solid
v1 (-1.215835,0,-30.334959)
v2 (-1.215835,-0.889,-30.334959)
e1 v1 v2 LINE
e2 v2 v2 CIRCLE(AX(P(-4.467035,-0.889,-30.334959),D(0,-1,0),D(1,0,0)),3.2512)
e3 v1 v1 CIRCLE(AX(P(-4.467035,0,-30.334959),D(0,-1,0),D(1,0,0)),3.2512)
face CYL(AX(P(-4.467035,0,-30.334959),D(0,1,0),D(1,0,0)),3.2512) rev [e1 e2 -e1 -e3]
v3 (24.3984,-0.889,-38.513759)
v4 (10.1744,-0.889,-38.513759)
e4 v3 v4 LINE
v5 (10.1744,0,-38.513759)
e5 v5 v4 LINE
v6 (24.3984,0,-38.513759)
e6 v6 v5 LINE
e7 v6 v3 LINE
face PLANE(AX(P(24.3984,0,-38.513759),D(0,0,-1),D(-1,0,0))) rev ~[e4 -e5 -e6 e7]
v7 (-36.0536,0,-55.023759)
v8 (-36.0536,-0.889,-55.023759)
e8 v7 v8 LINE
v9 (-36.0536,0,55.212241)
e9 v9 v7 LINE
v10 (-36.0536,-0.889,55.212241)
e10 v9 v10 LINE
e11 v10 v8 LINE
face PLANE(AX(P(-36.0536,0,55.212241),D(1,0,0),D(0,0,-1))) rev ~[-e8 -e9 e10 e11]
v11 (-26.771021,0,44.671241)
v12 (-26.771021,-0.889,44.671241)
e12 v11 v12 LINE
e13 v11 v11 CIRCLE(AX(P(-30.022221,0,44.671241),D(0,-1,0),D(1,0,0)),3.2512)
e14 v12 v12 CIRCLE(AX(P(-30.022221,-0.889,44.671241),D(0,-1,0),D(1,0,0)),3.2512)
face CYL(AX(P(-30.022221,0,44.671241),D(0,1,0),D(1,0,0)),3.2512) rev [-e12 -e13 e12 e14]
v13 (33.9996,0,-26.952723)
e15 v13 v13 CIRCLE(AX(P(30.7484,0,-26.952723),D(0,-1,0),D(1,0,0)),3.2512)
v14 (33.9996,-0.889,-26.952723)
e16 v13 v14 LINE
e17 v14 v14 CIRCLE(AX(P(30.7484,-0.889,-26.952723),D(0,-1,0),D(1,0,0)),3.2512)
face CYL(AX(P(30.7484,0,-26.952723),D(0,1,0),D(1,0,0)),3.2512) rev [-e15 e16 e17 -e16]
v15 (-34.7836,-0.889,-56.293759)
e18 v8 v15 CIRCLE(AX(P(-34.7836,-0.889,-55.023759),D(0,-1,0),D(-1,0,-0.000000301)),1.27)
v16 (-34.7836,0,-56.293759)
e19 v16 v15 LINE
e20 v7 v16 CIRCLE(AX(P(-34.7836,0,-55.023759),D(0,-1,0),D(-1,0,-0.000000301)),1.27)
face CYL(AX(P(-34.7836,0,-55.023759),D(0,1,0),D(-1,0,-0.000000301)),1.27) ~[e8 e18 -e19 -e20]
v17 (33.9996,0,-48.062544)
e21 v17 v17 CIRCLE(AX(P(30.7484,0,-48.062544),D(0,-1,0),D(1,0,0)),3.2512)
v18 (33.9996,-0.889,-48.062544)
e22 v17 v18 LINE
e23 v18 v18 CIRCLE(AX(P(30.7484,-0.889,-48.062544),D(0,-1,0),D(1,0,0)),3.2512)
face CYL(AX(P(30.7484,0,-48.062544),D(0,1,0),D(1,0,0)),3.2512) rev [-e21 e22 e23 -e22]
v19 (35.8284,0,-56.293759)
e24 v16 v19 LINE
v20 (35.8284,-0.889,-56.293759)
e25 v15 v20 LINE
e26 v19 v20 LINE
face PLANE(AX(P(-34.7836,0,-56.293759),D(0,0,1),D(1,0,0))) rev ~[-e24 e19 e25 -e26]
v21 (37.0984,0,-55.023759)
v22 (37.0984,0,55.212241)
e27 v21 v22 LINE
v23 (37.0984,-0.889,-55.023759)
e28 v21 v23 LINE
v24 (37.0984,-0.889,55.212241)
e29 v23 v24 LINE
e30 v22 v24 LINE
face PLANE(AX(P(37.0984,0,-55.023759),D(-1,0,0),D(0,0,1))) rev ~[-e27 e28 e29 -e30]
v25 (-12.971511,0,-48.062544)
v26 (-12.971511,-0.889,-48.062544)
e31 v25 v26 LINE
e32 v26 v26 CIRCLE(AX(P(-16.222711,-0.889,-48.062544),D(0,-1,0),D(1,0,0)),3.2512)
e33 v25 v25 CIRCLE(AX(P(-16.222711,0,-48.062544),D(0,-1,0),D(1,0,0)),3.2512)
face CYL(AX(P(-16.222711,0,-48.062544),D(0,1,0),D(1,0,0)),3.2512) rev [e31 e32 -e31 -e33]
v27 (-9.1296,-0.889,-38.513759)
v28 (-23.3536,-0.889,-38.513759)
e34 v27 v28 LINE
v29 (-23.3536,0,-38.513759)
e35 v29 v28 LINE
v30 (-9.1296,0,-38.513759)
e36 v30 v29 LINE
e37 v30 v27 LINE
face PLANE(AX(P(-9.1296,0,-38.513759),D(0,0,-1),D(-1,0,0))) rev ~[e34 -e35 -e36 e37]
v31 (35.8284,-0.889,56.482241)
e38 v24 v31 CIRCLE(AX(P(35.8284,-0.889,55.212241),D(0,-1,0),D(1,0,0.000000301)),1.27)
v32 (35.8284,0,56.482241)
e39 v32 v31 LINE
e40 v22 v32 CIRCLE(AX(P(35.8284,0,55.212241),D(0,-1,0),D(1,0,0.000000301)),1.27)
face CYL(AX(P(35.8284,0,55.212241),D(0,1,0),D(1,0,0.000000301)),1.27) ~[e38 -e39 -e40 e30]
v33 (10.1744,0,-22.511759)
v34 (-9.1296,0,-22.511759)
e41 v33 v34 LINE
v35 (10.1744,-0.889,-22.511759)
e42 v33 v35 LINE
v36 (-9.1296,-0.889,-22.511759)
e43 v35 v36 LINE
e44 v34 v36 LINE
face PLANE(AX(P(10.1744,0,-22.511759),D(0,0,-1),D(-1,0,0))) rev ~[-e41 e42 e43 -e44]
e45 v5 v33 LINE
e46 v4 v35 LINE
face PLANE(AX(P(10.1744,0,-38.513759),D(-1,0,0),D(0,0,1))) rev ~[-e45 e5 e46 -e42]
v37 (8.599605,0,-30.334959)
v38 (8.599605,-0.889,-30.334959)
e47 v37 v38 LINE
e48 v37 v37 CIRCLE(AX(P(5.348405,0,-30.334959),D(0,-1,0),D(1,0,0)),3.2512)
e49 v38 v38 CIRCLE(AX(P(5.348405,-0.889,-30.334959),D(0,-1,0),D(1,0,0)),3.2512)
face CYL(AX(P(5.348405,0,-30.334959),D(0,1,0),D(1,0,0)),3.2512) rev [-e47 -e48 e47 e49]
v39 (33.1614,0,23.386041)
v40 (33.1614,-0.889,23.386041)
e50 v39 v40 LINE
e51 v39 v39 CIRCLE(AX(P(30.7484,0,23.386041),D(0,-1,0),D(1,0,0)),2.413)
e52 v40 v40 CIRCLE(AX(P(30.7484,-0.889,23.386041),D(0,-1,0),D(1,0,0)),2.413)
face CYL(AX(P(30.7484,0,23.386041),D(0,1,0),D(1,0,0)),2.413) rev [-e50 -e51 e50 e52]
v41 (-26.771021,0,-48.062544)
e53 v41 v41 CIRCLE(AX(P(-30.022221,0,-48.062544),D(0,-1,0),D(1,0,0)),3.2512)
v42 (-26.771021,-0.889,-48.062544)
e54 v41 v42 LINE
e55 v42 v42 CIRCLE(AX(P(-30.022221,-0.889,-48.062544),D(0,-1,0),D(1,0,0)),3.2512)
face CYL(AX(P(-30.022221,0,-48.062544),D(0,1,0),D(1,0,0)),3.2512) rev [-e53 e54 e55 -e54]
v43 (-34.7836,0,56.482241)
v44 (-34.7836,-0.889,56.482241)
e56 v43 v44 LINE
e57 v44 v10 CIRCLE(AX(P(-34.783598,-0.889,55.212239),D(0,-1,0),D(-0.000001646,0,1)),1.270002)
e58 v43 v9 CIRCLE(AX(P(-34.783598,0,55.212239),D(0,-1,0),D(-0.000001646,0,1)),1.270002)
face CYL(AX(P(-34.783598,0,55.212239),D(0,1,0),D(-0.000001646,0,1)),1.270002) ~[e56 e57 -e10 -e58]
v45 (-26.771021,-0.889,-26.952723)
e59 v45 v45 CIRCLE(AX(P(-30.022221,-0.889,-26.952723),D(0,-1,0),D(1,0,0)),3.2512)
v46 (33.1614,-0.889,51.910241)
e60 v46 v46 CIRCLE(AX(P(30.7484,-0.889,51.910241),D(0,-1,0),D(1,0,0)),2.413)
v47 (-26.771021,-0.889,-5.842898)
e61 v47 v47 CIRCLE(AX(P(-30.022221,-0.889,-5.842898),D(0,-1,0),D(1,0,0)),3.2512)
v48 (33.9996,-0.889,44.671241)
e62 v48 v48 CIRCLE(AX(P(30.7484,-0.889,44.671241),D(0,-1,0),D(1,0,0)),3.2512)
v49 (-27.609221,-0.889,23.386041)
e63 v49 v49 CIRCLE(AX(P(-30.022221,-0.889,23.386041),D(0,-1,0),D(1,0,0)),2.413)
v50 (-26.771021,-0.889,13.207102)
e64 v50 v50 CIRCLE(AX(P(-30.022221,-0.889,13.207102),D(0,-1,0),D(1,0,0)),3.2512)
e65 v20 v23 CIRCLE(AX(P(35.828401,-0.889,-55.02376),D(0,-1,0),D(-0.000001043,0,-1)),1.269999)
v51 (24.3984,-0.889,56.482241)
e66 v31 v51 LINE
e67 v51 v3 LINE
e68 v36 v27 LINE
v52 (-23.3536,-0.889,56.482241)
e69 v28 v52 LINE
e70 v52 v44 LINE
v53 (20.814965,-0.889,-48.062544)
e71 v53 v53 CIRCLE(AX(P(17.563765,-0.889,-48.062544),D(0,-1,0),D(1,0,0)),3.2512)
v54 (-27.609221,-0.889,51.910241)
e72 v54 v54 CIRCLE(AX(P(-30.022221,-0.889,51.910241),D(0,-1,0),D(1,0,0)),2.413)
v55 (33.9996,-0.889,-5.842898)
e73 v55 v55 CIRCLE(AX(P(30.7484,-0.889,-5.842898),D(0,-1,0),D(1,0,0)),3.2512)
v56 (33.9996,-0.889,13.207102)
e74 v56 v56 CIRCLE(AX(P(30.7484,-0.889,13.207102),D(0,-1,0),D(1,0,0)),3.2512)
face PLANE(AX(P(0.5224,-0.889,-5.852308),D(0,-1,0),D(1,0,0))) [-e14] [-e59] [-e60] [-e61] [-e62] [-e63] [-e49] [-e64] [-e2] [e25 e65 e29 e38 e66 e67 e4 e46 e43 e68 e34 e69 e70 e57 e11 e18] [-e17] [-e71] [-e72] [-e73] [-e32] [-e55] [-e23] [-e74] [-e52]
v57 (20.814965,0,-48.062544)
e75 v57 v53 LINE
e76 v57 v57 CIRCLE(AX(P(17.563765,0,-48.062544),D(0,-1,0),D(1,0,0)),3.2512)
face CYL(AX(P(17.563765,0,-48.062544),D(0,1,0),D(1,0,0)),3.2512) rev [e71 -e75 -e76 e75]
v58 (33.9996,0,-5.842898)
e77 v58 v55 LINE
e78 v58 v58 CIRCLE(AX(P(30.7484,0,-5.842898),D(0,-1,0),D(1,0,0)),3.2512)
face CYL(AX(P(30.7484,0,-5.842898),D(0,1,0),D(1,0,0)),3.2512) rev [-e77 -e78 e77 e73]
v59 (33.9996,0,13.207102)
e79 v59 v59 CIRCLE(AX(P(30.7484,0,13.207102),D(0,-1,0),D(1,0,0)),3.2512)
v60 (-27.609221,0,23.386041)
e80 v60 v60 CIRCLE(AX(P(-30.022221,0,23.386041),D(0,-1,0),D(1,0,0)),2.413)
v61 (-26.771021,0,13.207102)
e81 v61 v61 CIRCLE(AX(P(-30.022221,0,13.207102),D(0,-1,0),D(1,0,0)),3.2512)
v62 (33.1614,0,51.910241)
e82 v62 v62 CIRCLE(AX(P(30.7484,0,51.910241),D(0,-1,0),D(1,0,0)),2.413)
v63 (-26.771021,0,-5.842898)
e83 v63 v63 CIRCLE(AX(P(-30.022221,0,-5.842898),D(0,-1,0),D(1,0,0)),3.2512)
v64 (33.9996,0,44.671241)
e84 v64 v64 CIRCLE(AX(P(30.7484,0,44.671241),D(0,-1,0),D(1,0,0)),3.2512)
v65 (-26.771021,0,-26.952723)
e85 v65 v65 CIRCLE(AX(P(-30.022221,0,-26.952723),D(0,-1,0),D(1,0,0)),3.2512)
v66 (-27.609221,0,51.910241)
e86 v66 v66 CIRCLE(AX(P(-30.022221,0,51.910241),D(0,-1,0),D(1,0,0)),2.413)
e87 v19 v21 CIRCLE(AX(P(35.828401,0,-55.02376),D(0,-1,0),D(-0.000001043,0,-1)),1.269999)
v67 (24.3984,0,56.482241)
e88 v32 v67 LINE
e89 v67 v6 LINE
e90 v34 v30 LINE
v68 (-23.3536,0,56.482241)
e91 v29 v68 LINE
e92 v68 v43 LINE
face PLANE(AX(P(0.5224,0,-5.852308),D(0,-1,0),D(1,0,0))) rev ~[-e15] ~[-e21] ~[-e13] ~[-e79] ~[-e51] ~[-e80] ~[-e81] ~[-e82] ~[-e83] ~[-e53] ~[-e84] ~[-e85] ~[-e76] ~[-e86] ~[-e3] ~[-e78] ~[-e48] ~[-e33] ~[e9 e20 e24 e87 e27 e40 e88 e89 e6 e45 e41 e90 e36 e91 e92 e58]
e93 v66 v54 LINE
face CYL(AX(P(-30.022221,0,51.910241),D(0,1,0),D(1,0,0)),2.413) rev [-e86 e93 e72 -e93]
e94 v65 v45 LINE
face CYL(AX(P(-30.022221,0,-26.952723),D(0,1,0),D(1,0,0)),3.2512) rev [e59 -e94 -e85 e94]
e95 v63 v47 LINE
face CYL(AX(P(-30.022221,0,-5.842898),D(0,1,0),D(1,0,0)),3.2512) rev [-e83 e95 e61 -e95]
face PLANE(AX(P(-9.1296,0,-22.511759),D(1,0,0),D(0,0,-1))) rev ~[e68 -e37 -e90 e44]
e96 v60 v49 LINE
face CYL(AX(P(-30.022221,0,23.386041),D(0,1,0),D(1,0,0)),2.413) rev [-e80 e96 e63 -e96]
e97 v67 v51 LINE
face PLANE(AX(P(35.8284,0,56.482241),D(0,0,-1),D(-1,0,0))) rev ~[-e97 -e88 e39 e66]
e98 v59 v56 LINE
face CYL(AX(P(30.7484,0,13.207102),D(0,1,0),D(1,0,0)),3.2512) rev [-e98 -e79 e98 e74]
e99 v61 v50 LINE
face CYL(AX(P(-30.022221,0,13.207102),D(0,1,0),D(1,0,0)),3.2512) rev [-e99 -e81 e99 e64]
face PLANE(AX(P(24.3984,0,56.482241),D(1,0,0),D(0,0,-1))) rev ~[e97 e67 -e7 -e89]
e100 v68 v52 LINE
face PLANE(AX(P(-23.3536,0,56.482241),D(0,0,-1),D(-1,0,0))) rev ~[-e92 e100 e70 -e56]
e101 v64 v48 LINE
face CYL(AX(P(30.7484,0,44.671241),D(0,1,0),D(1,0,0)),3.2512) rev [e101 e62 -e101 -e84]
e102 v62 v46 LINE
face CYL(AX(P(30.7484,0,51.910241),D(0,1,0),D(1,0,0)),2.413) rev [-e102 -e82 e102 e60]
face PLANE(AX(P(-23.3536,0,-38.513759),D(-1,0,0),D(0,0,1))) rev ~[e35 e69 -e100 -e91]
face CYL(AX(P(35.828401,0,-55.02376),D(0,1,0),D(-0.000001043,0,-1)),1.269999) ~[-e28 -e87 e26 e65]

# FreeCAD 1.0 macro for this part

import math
import FreeCAD as App
import Part
import Sketcher
Q = App.Units.Quantity

doc = App.newDocument("Part")
body = doc.addObject("PartDesign::Body", "Body")

# Sketch on XZ plane
sketch1 = body.newObject("Sketcher::SketchObject", "Sketch")
sketch1.AttachmentSupport = (doc.getObject("XZ_Plane"), [""])
sketch1.MapMode = "FlatFace"
sketch1.addGeometry([
    Part.ArcOfCircle(Part.Circle(App.Vector(-34.8, 55.2, 0), App.Vector(0, 0, 1), 1.3), math.radians(90), math.radians(180)),  # 0
    Part.LineSegment(App.Vector(-36.1, 55.2, 0), App.Vector(-36.1, -55, 0)),  # 1
    Part.ArcOfCircle(Part.Circle(App.Vector(-34.8, -55, 0), App.Vector(0, 0, 1), 1.3), math.radians(-180), math.radians(-90)),  # 2
    Part.LineSegment(App.Vector(-34.8, -56.3, 0), App.Vector(35.8, -56.3, 0)),  # 3
    Part.ArcOfCircle(Part.Circle(App.Vector(35.8, -55, 0), App.Vector(0, 0, 1), 1.3), math.radians(-90), math.radians(0)),  # 4
    Part.LineSegment(App.Vector(37.1, -55, 0), App.Vector(37.1, 55.2, 0)),  # 5
    Part.ArcOfCircle(Part.Circle(App.Vector(35.8, 55.2, 0), App.Vector(0, 0, 1), 1.3), math.radians(0), math.radians(90)),  # 6
    Part.LineSegment(App.Vector(35.8, 56.5, 0), App.Vector(24.4, 56.5, 0)),  # 7
    Part.LineSegment(App.Vector(24.4, 56.5, 0), App.Vector(24.4, -38.5, 0)),  # 8
    Part.LineSegment(App.Vector(24.4, -38.5, 0), App.Vector(10.2, -38.5, 0)),  # 9
    Part.LineSegment(App.Vector(10.2, -38.5, 0), App.Vector(10.2, -22.5, 0)),  # 10
    Part.LineSegment(App.Vector(10.2, -22.5, 0), App.Vector(-9.1, -22.5, 0)),  # 11
    Part.LineSegment(App.Vector(-9.1, -22.5, 0), App.Vector(-9.1, -38.5, 0)),  # 12
    Part.LineSegment(App.Vector(-9.1, -38.5, 0), App.Vector(-23.4, -38.5, 0)),  # 13
    Part.LineSegment(App.Vector(-23.4, -38.5, 0), App.Vector(-23.4, 56.5, 0)),  # 14
    Part.LineSegment(App.Vector(-23.4, 56.5, 0), App.Vector(-34.8, 56.5, 0)),  # 15
    Part.Circle(App.Vector(-30, -48.1, 0), App.Vector(0, 0, 1), 3.3),  # 16
    Part.Circle(App.Vector(-30, -27, 0), App.Vector(0, 0, 1), 3.3),  # 17
    Part.Circle(App.Vector(-16.2, -48.1, 0), App.Vector(0, 0, 1), 3.3),  # 18
    Part.Circle(App.Vector(-4.5, -30.3, 0), App.Vector(0, 0, 1), 3.3),  # 19
    Part.Circle(App.Vector(-30, -5.8, 0), App.Vector(0, 0, 1), 3.3),  # 20
    Part.Circle(App.Vector(5.3, -30.3, 0), App.Vector(0, 0, 1), 3.3),  # 21
    Part.Circle(App.Vector(17.6, -48.1, 0), App.Vector(0, 0, 1), 3.3),  # 22
    Part.Circle(App.Vector(30.7, -48.1, 0), App.Vector(0, 0, 1), 3.3),  # 23
    Part.Circle(App.Vector(30.7, -27, 0), App.Vector(0, 0, 1), 3.3),  # 24
    Part.Circle(App.Vector(30.7, -5.8, 0), App.Vector(0, 0, 1), 3.3),  # 25
    Part.Circle(App.Vector(-30, 13.2, 0), App.Vector(0, 0, 1), 3.3),  # 26
    Part.Circle(App.Vector(-30, 23.4, 0), App.Vector(0, 0, 1), 2.4),  # 27
    Part.Circle(App.Vector(-30, 44.7, 0), App.Vector(0, 0, 1), 3.3),  # 28
    Part.Circle(App.Vector(-30, 51.9, 0), App.Vector(0, 0, 1), 2.4),  # 29
    Part.Circle(App.Vector(30.7, 13.2, 0), App.Vector(0, 0, 1), 3.3),  # 30
    Part.Circle(App.Vector(30.7, 23.4, 0), App.Vector(0, 0, 1), 2.4),  # 31
    Part.Circle(App.Vector(30.7, 44.7, 0), App.Vector(0, 0, 1), 3.3),  # 32
    Part.Circle(App.Vector(30.7, 51.9, 0), App.Vector(0, 0, 1), 2.4),  # 33
], False)
sketch1.addConstraint([
    Sketcher.Constraint("Tangent", 0, 2, 1, 1),
    Sketcher.Constraint("Tangent", 1, 2, 2, 1),
    Sketcher.Constraint("Tangent", 2, 2, 3, 1),
    Sketcher.Constraint("Tangent", 3, 2, 4, 1),
    Sketcher.Constraint("Tangent", 4, 2, 5, 1),
    Sketcher.Constraint("Tangent", 5, 2, 6, 1),
    Sketcher.Constraint("Tangent", 6, 2, 7, 1),
    Sketcher.Constraint("Coincident", 7, 2, 8, 1),
    Sketcher.Constraint("Coincident", 8, 2, 9, 1),
    Sketcher.Constraint("Coincident", 9, 2, 10, 1),
    Sketcher.Constraint("Coincident", 10, 2, 11, 1),
    Sketcher.Constraint("Coincident", 11, 2, 12, 1),
    Sketcher.Constraint("Coincident", 12, 2, 13, 1),
    Sketcher.Constraint("Coincident", 13, 2, 14, 1),
    Sketcher.Constraint("Coincident", 14, 2, 15, 1),
    Sketcher.Constraint("Tangent", 15, 2, 0, 1),
    Sketcher.Constraint("Vertical", 1),
    Sketcher.Constraint("Horizontal", 3),
    Sketcher.Constraint("Vertical", 5),
    Sketcher.Constraint("Horizontal", 7),
    Sketcher.Constraint("Vertical", 8),
    Sketcher.Constraint("Horizontal", 9),
    Sketcher.Constraint("Vertical", 10),
    Sketcher.Constraint("Horizontal", 11),
    Sketcher.Constraint("Vertical", 12),
    Sketcher.Constraint("Horizontal", 13),
    Sketcher.Constraint("Vertical", 14),
    Sketcher.Constraint("Horizontal", 15),
    Sketcher.Constraint("Equal", 0, 2),
    Sketcher.Constraint("Equal", 2, 4),
    Sketcher.Constraint("Equal", 4, 6),
    Sketcher.Constraint("Equal", 16, 17),
    Sketcher.Constraint("Equal", 17, 18),
    Sketcher.Constraint("Equal", 18, 19),
    Sketcher.Constraint("Equal", 19, 20),
    Sketcher.Constraint("Equal", 20, 21),
    Sketcher.Constraint("Equal", 21, 22),
    Sketcher.Constraint("Equal", 22, 23),
    Sketcher.Constraint("Equal", 23, 24),
    Sketcher.Constraint("Equal", 24, 25),
    Sketcher.Constraint("Equal", 25, 26),
    Sketcher.Constraint("Equal", 26, 28),
    Sketcher.Constraint("Equal", 27, 29),
    Sketcher.Constraint("Equal", 28, 30),
    Sketcher.Constraint("Equal", 29, 31),
    Sketcher.Constraint("Equal", 30, 32),
    Sketcher.Constraint("Equal", 31, 33),
    Sketcher.Constraint("Horizontal", 0, 3, 6, 3),
    Sketcher.Constraint("Horizontal", 16, 3, 18, 3),
    Sketcher.Constraint("Horizontal", 19, 3, 21, 3),
    Sketcher.Constraint("Horizontal", 18, 3, 22, 3),
    Sketcher.Constraint("Horizontal", 22, 3, 23, 3),
    Sketcher.Constraint("Horizontal", 17, 3, 24, 3),
    Sketcher.Constraint("Horizontal", 20, 3, 25, 3),
    Sketcher.Constraint("Horizontal", 26, 3, 30, 3),
    Sketcher.Constraint("Horizontal", 27, 3, 31, 3),
    Sketcher.Constraint("Horizontal", 28, 3, 32, 3),
    Sketcher.Constraint("Horizontal", 29, 3, 33, 3),
    Sketcher.Constraint("Horizontal", 9, 2, 12, 2),
    Sketcher.Constraint("Vertical", 16, 3, 17, 3),
    Sketcher.Constraint("Vertical", 17, 3, 20, 3),
    Sketcher.Constraint("Vertical", 23, 3, 24, 3),
    Sketcher.Constraint("Vertical", 24, 3, 25, 3),
    Sketcher.Constraint("Vertical", 20, 3, 26, 3),
    Sketcher.Constraint("Vertical", 26, 3, 27, 3),
    Sketcher.Constraint("Vertical", 27, 3, 28, 3),
    Sketcher.Constraint("Vertical", 28, 3, 29, 3),
    Sketcher.Constraint("Vertical", 25, 3, 30, 3),
    Sketcher.Constraint("Vertical", 30, 3, 31, 3),
    Sketcher.Constraint("Vertical", 31, 3, 32, 3),
    Sketcher.Constraint("Vertical", 32, 3, 33, 3),
    Sketcher.Constraint("Equal", 9, 13),
    Sketcher.Constraint("Equal", 7, 15),
    Sketcher.Constraint("Diameter", 27, Q("0.19 in")),
    Sketcher.Constraint("Radius", 0, Q("0.0500001 in")),
    Sketcher.Constraint("Diameter", 16, Q("0.256 in")),
    Sketcher.Constraint("DistanceX", 21, 3, 23, 3, Q("0.9999998 in")),
    Sketcher.Constraint("DistanceX", 3, 1, 3, 2, Q("2.78 in")),
    Sketcher.Constraint("DistanceX", 7, 2, 7, 1, Q("0.45 in")),
    Sketcher.Constraint("DistanceX", 9, 2, 9, 1, Q("0.56 in")),
    Sketcher.Constraint("DistanceY", 1, 2, 1, 1, Q("4.34 in")),
    Sketcher.Constraint("DistanceY", 8, 2, 8, 1, Q("3.74 in")),
    Sketcher.Constraint("DistanceY", 10, 1, 10, 2, Q("0.63 in")),
    Sketcher.Constraint("DistanceX", 21, 3, 4, 3, Q("1.1999999 in")),
    Sketcher.Constraint("DistanceY", 20, 3, 26, 3, Q("0.75 in")),
    Sketcher.Constraint("DistanceY", 29, 3, 0, 3, Q("0.1299999 in")),
    Sketcher.Constraint("DistanceY", 2, 3, 19, 3, Q("0.972 in")),
    Sketcher.Constraint("DistanceY", 27, 3, 0, 3, Q("1.2529999 in")),
    Sketcher.Constraint("DistanceY", 28, 3, 0, 3, Q("0.4149999 in")),
    Sketcher.Constraint("DistanceX", 2, 3, -1, 1, Q("34.7836 mm")),
    Sketcher.Constraint("DistanceX", 19, 3, 22, 3, Q("22.0308 mm")),
    Sketcher.Constraint("DistanceY", -1, 1, 0, 3, Q("55.212239 mm")),
    Sketcher.Constraint("DistanceX", 16, 3, -1, 1, Q("30.022221 mm")),
    Sketcher.Constraint("DistanceX", 18, 3, -1, 1, Q("16.222711 mm")),
    Sketcher.Constraint("DistanceY", 16, 3, 17, 3, Q("21.109821 mm")),
    Sketcher.Constraint("DistanceY", 17, 3, 0, 3, Q("82.164962 mm")),
    Sketcher.Constraint("DistanceY", 19, 3, 20, 3, Q("24.492061 mm")),
    Sketcher.Constraint("DistanceX", 19, 3, 21, 3, Q("9.81544 mm")),
])
pad1 = body.newObject("PartDesign::Pad", "Pad")
pad1.Profile = sketch1
pad1.Length = Q("0.035 in")

doc.recompute()
